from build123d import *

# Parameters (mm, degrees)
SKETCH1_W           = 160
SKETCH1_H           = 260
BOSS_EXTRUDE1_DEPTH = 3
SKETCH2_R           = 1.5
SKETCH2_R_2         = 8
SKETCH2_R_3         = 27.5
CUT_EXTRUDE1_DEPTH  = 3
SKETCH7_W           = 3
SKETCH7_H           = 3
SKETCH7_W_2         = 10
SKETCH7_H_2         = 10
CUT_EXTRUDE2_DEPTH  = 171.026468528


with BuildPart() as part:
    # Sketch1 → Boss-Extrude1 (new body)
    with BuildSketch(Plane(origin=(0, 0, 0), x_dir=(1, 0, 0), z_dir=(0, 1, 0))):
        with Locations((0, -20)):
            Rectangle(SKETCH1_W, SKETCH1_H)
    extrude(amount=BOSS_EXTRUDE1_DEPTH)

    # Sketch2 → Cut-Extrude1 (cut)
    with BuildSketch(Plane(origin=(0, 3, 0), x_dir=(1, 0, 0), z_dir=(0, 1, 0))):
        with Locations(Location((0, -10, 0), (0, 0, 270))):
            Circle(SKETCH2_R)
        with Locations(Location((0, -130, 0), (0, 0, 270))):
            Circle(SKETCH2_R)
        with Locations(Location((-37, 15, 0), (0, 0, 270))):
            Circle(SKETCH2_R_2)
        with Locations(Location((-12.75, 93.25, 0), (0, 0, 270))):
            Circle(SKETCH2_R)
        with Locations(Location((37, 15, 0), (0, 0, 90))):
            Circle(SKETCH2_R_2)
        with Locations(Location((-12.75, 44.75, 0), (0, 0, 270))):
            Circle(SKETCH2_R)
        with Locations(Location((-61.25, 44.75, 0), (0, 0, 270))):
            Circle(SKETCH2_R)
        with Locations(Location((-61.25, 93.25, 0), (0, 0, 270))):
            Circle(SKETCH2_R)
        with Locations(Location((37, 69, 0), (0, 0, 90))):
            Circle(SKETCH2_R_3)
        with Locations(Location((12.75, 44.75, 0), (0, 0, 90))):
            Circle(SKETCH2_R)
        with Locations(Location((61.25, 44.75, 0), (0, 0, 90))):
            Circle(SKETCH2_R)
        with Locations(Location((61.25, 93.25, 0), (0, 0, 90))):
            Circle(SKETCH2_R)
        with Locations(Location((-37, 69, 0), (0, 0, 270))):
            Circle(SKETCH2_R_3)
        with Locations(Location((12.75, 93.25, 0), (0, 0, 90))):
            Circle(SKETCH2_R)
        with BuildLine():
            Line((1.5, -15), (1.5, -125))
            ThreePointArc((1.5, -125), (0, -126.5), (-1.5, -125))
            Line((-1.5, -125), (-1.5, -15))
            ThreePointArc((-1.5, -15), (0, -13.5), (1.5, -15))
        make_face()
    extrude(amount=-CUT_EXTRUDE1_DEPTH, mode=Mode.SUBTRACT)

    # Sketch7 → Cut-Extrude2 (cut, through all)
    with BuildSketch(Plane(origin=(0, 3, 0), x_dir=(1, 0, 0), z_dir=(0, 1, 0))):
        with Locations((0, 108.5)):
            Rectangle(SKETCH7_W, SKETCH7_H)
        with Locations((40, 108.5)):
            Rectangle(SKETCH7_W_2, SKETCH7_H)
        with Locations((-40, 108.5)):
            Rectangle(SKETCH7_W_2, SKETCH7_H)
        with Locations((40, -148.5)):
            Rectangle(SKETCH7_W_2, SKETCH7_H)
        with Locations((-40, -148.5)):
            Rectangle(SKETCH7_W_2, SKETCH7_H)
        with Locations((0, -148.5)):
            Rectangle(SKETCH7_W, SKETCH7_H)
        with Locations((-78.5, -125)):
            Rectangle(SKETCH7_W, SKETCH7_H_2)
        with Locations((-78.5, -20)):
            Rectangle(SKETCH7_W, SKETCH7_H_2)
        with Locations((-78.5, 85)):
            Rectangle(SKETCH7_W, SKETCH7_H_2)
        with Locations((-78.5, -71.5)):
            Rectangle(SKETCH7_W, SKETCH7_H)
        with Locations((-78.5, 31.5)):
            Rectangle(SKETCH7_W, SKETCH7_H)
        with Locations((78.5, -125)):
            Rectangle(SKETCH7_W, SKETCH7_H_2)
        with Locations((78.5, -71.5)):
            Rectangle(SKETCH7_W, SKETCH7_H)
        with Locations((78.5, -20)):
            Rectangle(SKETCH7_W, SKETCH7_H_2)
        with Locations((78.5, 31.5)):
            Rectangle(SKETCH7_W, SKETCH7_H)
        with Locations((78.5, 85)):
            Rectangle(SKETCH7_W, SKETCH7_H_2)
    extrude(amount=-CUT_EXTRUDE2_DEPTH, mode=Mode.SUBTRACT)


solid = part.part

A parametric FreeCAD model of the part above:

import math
import FreeCAD as App
import Part
import Sketcher
from FreeCAD import Vector
Q = App.Units.Quantity


def add_polygon(sketch, points):
    """Adds a closed chain of lines whose ends are joined by coincident constraints."""
    first, n = sketch.GeometryCount, len(points)
    for a, b in zip(points, points[1:] + points[:1]):
        sketch.addGeometry(Part.LineSegment(App.Vector(*a, 0), App.Vector(*b, 0)), False)
    for i in range(n):
        sketch.addConstraint(Sketcher.Constraint("Coincident", first + i, 2, first + (i + 1) % n, 1))

doc = App.newDocument("Part")
body = doc.addObject("PartDesign::Body", "Body")

# Sketch on XZ plane
sketch1 = body.newObject("Sketcher::SketchObject", "Sketch")
sketch1.AttachmentSupport = (doc.getObject("XZ_Plane"), [""])
sketch1.MapMode = "FlatFace"
add_polygon(sketch1, [(-80, -110), (-80, 150), (80, 150), (80, -110)])  # lines 0-3
sketch1.addConstraint([
    Sketcher.Constraint("Vertical", 0),
    Sketcher.Constraint("Horizontal", 1),
    Sketcher.Constraint("Vertical", 2),
    Sketcher.Constraint("Horizontal", 3),
    Sketcher.Constraint("DistanceX", 1, 1, 1, 2, Q("160 mm")),
    Sketcher.Constraint("DistanceY", 0, 1, 0, 2, Q("260 mm")),
    Sketcher.Constraint("DistanceX", 0, 2, -1, 1, Q("80 mm")),
    Sketcher.Constraint("DistanceY", -1, 1, 0, 2, Q("150 mm")),
])
pad1 = body.newObject("PartDesign::Pad", "Pad")
pad1.Profile = sketch1
pad1.Length = 3
pad1.Reversed = True

# Sketch on XZ plane
sketch2 = body.newObject("Sketcher::SketchObject", "Sketch001")
sketch2.AttachmentSupport = (doc.getObject("XZ_Plane"), [""])
sketch2.MapMode = "FlatFace"
sketch2.AttachmentOffset = App.Placement(Vector(0, 0, -3), App.Rotation())
sketch2.addGeometry([
    Part.Circle(Vector(0, 10, 0), Vector(0, 0, 1), 1.5),  # 0
    Part.Circle(Vector(0, 130, 0), Vector(0, 0, 1), 1.5),  # 1
    Part.Circle(Vector(-37, -15, 0), Vector(0, 0, 1), 8),  # 2
    Part.Circle(Vector(-12.8, -93.2, 0), Vector(0, 0, 1), 1.5),  # 3
    Part.Circle(Vector(37, -15, 0), Vector(0, 0, 1), 8),  # 4
    Part.Circle(Vector(-12.8, -44.8, 0), Vector(0, 0, 1), 1.5),  # 5
    Part.Circle(Vector(-61.2, -44.8, 0), Vector(0, 0, 1), 1.5),  # 6
    Part.Circle(Vector(-61.2, -93.2, 0), Vector(0, 0, 1), 1.5),  # 7
    Part.Circle(Vector(37, -69, 0), Vector(0, 0, 1), 27.5),  # 8
    Part.Circle(Vector(12.8, -44.8, 0), Vector(0, 0, 1), 1.5),  # 9
    Part.Circle(Vector(61.2, -44.8, 0), Vector(0, 0, 1), 1.5),  # 10
    Part.Circle(Vector(61.2, -93.2, 0), Vector(0, 0, 1), 1.5),  # 11
    Part.Circle(Vector(-37, -69, 0), Vector(0, 0, 1), 27.5),  # 12
    Part.Circle(Vector(12.8, -93.2, 0), Vector(0, 0, 1), 1.5),  # 13
    Part.LineSegment(Vector(1.5, 125, 0), Vector(1.5, 15, 0)),  # 14
    Part.ArcOfCircle(Part.Circle(Vector(0, 15, 0), Vector(0, 0, 1), 1.5), math.radians(180), math.radians(360)),  # 15
    Part.LineSegment(Vector(-1.5, 15, 0), Vector(-1.5, 125, 0)),  # 16
    Part.ArcOfCircle(Part.Circle(Vector(0, 125, 0), Vector(0, 0, 1), 1.5), math.radians(0), math.radians(180)),  # 17
], False)
sketch2.addConstraint([
    Sketcher.Constraint("Tangent", 14, 2, 15, 2),
    Sketcher.Constraint("Tangent", 15, 1, 16, 1),
    Sketcher.Constraint("Tangent", 16, 2, 17, 2),
    Sketcher.Constraint("Tangent", 17, 1, 14, 1),
    Sketcher.Constraint("Vertical", 14),
    Sketcher.Constraint("Vertical", 16),
    Sketcher.Constraint("Equal", 0, 1),
    Sketcher.Constraint("Equal", 1, 3),
    Sketcher.Constraint("Equal", 2, 4),
    Sketcher.Constraint("Equal", 3, 5),
    Sketcher.Constraint("Equal", 5, 6),
    Sketcher.Constraint("Equal", 6, 7),
    Sketcher.Constraint("Equal", 7, 9),
    Sketcher.Constraint("Equal", 9, 10),
    Sketcher.Constraint("Equal", 10, 11),
    Sketcher.Constraint("Equal", 8, 12),
    Sketcher.Constraint("Equal", 11, 13),
    Sketcher.Constraint("Equal", 13, 15),
    Sketcher.Constraint("Symmetric", 2, 3, 4, 3, -2),
    Sketcher.Constraint("Symmetric", 5, 3, 9, 3, -2),
    Sketcher.Constraint("Symmetric", 6, 3, 10, 3, -2),
    Sketcher.Constraint("Symmetric", 7, 3, 11, 3, -2),
    Sketcher.Constraint("Symmetric", 8, 3, 12, 3, -2),
    Sketcher.Constraint("Symmetric", 3, 3, 13, 3, -2),
    Sketcher.Constraint("PointOnObject", 0, 3, -2),
    Sketcher.Constraint("PointOnObject", 1, 3, -2),
    Sketcher.Constraint("PointOnObject", 15, 3, -2),
    Sketcher.Constraint("Horizontal", 5, 3, 6, 3),
    Sketcher.Constraint("Horizontal", 3, 3, 7, 3),
    Sketcher.Constraint("Vertical", 3, 3, 5, 3),
    Sketcher.Constraint("Vertical", 6, 3, 7, 3),
    Sketcher.Constraint("Vertical", 4, 3, 8, 3),
    Sketcher.Constraint("Diameter", 0, Q("3 mm")),
    Sketcher.Constraint("Diameter", 2, Q("16 mm")),
    Sketcher.Constraint("Diameter", 8, Q("55 mm")),
    Sketcher.Constraint("DistanceY", 14, 2, 14, 1, Q("110 mm")),
    Sketcher.Constraint("DistanceY", -1, 1, 0, 3, Q("10 mm")),
    Sketcher.Constraint("DistanceY", -1, 1, 1, 3, Q("130 mm")),
    Sketcher.Constraint("DistanceX", 2, 3, -1, 1, Q("37 mm")),
    Sketcher.Constraint("DistanceY", 2, 3, -1, 1, Q("15 mm")),
    Sketcher.Constraint("DistanceY", 8, 3, -1, 1, Q("69 mm")),
    Sketcher.Constraint("DistanceY", -1, 1, 15, 3, Q("15 mm")),
    Sketcher.Constraint("DistanceX", 5, 3, 10, 3, Q("74 mm")),
    Sketcher.Constraint("DistanceY", 3, 3, 5, 3, Q("48.5 mm")),
    Sketcher.Constraint("DistanceX", 6, 3, 5, 3, Q("48.5 mm")),
    Sketcher.Constraint("DistanceY", 3, 3, -1, 1, Q("93.25 mm")),
])
pocket1 = body.newObject("PartDesign::Pocket", "Pocket")
pocket1.Profile = sketch2
pocket1.Length = 3
pocket1.Reversed = True

# Sketch on XZ plane
sketch3 = body.newObject("Sketcher::SketchObject", "Sketch002")
sketch3.AttachmentSupport = (doc.getObject("XZ_Plane"), [""])
sketch3.MapMode = "FlatFace"
sketch3.AttachmentOffset = App.Placement(Vector(0, 0, -3), App.Rotation())
add_polygon(sketch3, [(-1.5, -110), (-1.5, -107), (1.5, -107), (1.5, -110)])  # lines 0-3
add_polygon(sketch3, [(35, -110), (35, -107), (45, -107), (45, -110)])  # lines 4-7
add_polygon(sketch3, [(-45, -110), (-45, -107), (-35, -107), (-35, -110)])  # lines 8-11
add_polygon(sketch3, [(35, 147), (35, 150), (45, 150), (45, 147)])  # lines 12-15
add_polygon(sketch3, [(-45, 147), (-45, 150), (-35, 150), (-35, 147)])  # lines 16-19
add_polygon(sketch3, [(-1.5, 147), (-1.5, 150), (1.5, 150), (1.5, 147)])  # lines 20-23
add_polygon(sketch3, [(-80, 120), (-80, 130), (-77, 130), (-77, 120)])  # lines 24-27
add_polygon(sketch3, [(-80, 15), (-80, 25), (-77, 25), (-77, 15)])  # lines 28-31
add_polygon(sketch3, [(-80, -90), (-80, -80), (-77, -80), (-77, -90)])  # lines 32-35
add_polygon(sketch3, [(-80, 70), (-80, 73), (-77, 73), (-77, 70)])  # lines 36-39
add_polygon(sketch3, [(-80, -33), (-80, -30), (-77, -30), (-77, -33)])  # lines 40-43
add_polygon(sketch3, [(77, 120), (77, 130), (80, 130), (80, 120)])  # lines 44-47
add_polygon(sketch3, [(77, 70), (77, 73), (80, 73), (80, 70)])  # lines 48-51
add_polygon(sketch3, [(77, 15), (77, 25), (80, 25), (80, 15)])  # lines 52-55
add_polygon(sketch3, [(77, -33), (77, -30), (80, -30), (80, -33)])  # lines 56-59
add_polygon(sketch3, [(77, -90), (77, -80), (80, -80), (80, -90)])  # lines 60-63
sketch3.addConstraint([
    Sketcher.Constraint("Vertical", 0),
    Sketcher.Constraint("Horizontal", 1),
    Sketcher.Constraint("Vertical", 2),
    Sketcher.Constraint("Horizontal", 3),
    Sketcher.Constraint("Vertical", 4),
    Sketcher.Constraint("Horizontal", 5),
    Sketcher.Constraint("Vertical", 6),
    Sketcher.Constraint("Horizontal", 7),
    Sketcher.Constraint("Vertical", 8),
    Sketcher.Constraint("Horizontal", 9),
    Sketcher.Constraint("Vertical", 10),
    Sketcher.Constraint("Horizontal", 11),
    Sketcher.Constraint("Vertical", 12),
    Sketcher.Constraint("Horizontal", 13),
    Sketcher.Constraint("Vertical", 14),
    Sketcher.Constraint("Horizontal", 15),
    Sketcher.Constraint("Vertical", 16),
    Sketcher.Constraint("Horizontal", 17),
    Sketcher.Constraint("Vertical", 18),
    Sketcher.Constraint("Horizontal", 19),
    Sketcher.Constraint("Vertical", 20),
    Sketcher.Constraint("Horizontal", 21),
    Sketcher.Constraint("Vertical", 22),
    Sketcher.Constraint("Horizontal", 23),
    Sketcher.Constraint("Vertical", 24),
    Sketcher.Constraint("Horizontal", 25),
    Sketcher.Constraint("Vertical", 26),
    Sketcher.Constraint("Horizontal", 27),
    Sketcher.Constraint("Vertical", 28),
    Sketcher.Constraint("Horizontal", 29),
    Sketcher.Constraint("Vertical", 30),
    Sketcher.Constraint("Horizontal", 31),
    Sketcher.Constraint("Vertical", 32),
    Sketcher.Constraint("Horizontal", 33),
    Sketcher.Constraint("Vertical", 34),
    Sketcher.Constraint("Horizontal", 35),
    Sketcher.Constraint("Vertical", 36),
    Sketcher.Constraint("Horizontal", 37),
    Sketcher.Constraint("Vertical", 38),
    Sketcher.Constraint("Horizontal", 39),
    Sketcher.Constraint("Vertical", 40),
    Sketcher.Constraint("Horizontal", 41),
    Sketcher.Constraint("Vertical", 42),
    Sketcher.Constraint("Horizontal", 43),
    Sketcher.Constraint("Vertical", 44),
    Sketcher.Constraint("Horizontal", 45),
    Sketcher.Constraint("Vertical", 46),
    Sketcher.Constraint("Horizontal", 47),
    Sketcher.Constraint("Vertical", 48),
    Sketcher.Constraint("Horizontal", 49),
    Sketcher.Constraint("Vertical", 50),
    Sketcher.Constraint("Horizontal", 51),
    Sketcher.Constraint("Vertical", 52),
    Sketcher.Constraint("Horizontal", 53),
    Sketcher.Constraint("Vertical", 54),
    Sketcher.Constraint("Horizontal", 55),
    Sketcher.Constraint("Vertical", 56),
    Sketcher.Constraint("Horizontal", 57),
    Sketcher.Constraint("Vertical", 58),
    Sketcher.Constraint("Horizontal", 59),
    Sketcher.Constraint("Vertical", 60),
    Sketcher.Constraint("Horizontal", 61),
    Sketcher.Constraint("Vertical", 62),
    Sketcher.Constraint("Horizontal", 63),
    Sketcher.Constraint("Symmetric", 5, 2, 8, 2, -2),
    Sketcher.Constraint("Symmetric", 7, 2, 10, 2, -2),
    Sketcher.Constraint("Symmetric", 13, 2, 16, 2, -2),
    Sketcher.Constraint("Symmetric", 15, 2, 18, 2, -2),
    Sketcher.Constraint("Symmetric", 25, 2, 44, 2, -2),
    Sketcher.Constraint("Symmetric", 27, 2, 46, 2, -2),
    Sketcher.Constraint("Symmetric", 37, 2, 48, 2, -2),
    Sketcher.Constraint("Symmetric", 39, 2, 50, 2, -2),
    Sketcher.Constraint("Symmetric", 29, 2, 52, 2, -2),
    Sketcher.Constraint("Symmetric", 31, 2, 54, 2, -2),
    Sketcher.Constraint("Symmetric", 41, 2, 56, 2, -2),
    Sketcher.Constraint("Symmetric", 43, 2, 58, 2, -2),
    Sketcher.Constraint("Symmetric", 33, 2, 60, 2, -2),
    Sketcher.Constraint("Symmetric", 35, 2, 62, 2, -2),
    Sketcher.Constraint("Horizontal", 1, 2, 4, 2),
    Sketcher.Constraint("Horizontal", 3, 2, 6, 2),
    Sketcher.Constraint("Horizontal", 17, 2, 20, 2),
    Sketcher.Constraint("Horizontal", 19, 2, 22, 2),
    Sketcher.Constraint("Vertical", 7, 2, 12, 2),
    Sketcher.Constraint("Vertical", 6, 2, 13, 2),
    Sketcher.Constraint("Vertical", 3, 2, 20, 2),
    Sketcher.Constraint("Vertical", 2, 2, 21, 2),
    Sketcher.Constraint("Vertical", 27, 2, 28, 2),
    Sketcher.Constraint("Vertical", 26, 2, 29, 2),
    Sketcher.Constraint("Vertical", 31, 2, 32, 2),
    Sketcher.Constraint("Vertical", 30, 2, 33, 2),
    Sketcher.Constraint("Vertical", 35, 2, 36, 2),
    Sketcher.Constraint("Vertical", 34, 2, 37, 2),
    Sketcher.Constraint("Vertical", 39, 2, 40, 2),
    Sketcher.Constraint("Vertical", 38, 2, 41, 2),
    Sketcher.Constraint("Equal", 23, 25),
    Sketcher.Constraint("Equal", 63, 0),
    Sketcher.Constraint("Equal", 10, 12),
    Sketcher.Constraint("Equal", 19, 24),
    Sketcher.Constraint("Equal", 26, 28),
    Sketcher.Constraint("Equal", 30, 32),
    Sketcher.Constraint("Equal", 22, 36),
    Sketcher.Constraint("Equal", 38, 40),
    Sketcher.Constraint("DistanceX", 1, 1, 1, 2, Q("3 mm")),
    Sketcher.Constraint("DistanceX", 5, 1, 5, 2, Q("10 mm")),
    Sketcher.Constraint("DistanceY", 0, 2, -1, 1, Q("107 mm")),
    Sketcher.Constraint("DistanceX", -1, 1, 4, 2, Q("35 mm")),
    Sketcher.Constraint("DistanceY", -1, 1, 12, 2, Q("150 mm")),
    Sketcher.Constraint("DistanceX", 24, 2, -1, 1, Q("80 mm")),
    Sketcher.Constraint("DistanceY", -1, 1, 24, 2, Q("130 mm")),
    Sketcher.Constraint("DistanceY", -1, 1, 28, 2, Q("25 mm")),
    Sketcher.Constraint("DistanceY", 32, 2, -1, 1, Q("80 mm")),
    Sketcher.Constraint("DistanceY", -1, 1, 36, 2, Q("73 mm")),
    Sketcher.Constraint("DistanceY", 40, 2, -1, 1, Q("30 mm")),
    Sketcher.Constraint("DistanceX", 0, 2, -1, 1, Q("1.5 mm")),
])
pocket2 = body.newObject("PartDesign::Pocket", "Pocket001")
pocket2.Profile = sketch3
pocket2.Type = "ThroughAll"
pocket2.Reversed = True

doc.recompute()
